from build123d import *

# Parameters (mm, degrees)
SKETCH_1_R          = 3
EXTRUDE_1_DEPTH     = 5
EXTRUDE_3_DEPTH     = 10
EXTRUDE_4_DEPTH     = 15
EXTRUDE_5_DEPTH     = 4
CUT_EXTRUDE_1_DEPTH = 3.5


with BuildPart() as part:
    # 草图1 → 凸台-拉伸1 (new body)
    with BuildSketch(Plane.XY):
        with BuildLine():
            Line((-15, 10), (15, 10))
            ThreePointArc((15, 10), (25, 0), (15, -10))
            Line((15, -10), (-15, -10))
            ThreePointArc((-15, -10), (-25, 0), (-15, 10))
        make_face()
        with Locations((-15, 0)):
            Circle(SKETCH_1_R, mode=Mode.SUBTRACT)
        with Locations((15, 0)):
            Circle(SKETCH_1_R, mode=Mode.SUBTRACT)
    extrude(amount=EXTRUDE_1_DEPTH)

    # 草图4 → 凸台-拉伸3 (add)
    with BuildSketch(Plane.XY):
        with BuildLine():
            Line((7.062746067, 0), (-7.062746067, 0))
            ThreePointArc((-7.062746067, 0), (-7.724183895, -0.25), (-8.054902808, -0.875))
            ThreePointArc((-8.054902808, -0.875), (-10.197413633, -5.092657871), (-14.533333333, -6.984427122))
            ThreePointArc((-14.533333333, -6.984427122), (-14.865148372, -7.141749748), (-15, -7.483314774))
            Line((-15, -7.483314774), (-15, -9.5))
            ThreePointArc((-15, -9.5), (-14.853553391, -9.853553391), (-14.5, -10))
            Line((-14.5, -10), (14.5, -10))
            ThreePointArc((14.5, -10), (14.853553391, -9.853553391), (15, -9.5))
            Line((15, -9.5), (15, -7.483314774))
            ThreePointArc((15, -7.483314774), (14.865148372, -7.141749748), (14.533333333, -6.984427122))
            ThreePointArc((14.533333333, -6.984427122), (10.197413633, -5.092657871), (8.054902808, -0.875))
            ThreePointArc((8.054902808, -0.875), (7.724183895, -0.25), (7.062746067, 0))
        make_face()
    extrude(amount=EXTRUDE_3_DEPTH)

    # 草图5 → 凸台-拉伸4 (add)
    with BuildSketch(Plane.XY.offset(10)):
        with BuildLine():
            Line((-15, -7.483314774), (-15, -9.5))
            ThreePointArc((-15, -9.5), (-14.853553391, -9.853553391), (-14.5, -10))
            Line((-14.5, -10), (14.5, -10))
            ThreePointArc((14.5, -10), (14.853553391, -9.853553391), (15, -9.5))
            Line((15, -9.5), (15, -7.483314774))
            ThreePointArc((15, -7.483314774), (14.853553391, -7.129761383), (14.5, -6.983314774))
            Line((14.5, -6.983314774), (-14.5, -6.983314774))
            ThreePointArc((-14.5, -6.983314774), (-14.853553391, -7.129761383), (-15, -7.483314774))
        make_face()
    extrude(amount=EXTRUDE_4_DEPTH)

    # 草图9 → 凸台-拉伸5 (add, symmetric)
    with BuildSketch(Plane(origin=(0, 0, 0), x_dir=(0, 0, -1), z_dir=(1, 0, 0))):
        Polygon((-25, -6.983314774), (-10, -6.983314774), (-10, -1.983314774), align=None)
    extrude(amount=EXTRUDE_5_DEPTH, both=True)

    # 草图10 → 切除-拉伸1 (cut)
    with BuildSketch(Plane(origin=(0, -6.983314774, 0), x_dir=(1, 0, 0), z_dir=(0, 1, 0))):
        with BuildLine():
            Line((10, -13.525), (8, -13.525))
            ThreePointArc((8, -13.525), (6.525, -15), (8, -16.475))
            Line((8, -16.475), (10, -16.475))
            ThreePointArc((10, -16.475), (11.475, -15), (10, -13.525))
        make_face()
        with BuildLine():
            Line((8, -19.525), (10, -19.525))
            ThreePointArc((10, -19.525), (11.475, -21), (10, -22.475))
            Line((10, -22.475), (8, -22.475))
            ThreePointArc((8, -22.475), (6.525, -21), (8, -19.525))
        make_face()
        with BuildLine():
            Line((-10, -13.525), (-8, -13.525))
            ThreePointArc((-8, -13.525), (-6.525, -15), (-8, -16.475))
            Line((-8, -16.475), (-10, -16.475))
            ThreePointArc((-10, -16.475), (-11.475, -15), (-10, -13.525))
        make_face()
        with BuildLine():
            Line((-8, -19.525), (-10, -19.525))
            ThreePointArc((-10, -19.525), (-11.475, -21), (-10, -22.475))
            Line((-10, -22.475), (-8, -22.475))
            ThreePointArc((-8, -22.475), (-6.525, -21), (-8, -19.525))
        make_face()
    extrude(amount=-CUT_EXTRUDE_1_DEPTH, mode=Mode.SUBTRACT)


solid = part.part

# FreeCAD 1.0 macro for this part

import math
import FreeCAD as App
import Part
import Sketcher
from FreeCAD import Vector

doc = App.newDocument("Part")
body = doc.addObject("PartDesign::Body", "Body")

sketch1 = body.newObject("Sketcher::SketchObject", "Sketch")
sketch1.AttachmentSupport = (doc.getObject("XY_Plane"), [""])
sketch1.MapMode = "FlatFace"
sketch1.addGeometry(Part.LineSegment(Vector(15, 10, 0), Vector(-15, 10, 0)), False)
sketch1.addGeometry(Part.ArcOfCircle(Part.Circle(Vector(-15, 0, 0), Vector(0, 0, 1), 10), math.radians(90), math.radians(270)), False)
sketch1.addGeometry(Part.LineSegment(Vector(-15, -10, 0), Vector(15, -10, 0)), False)
sketch1.addGeometry(Part.ArcOfCircle(Part.Circle(Vector(15, 0, 0), Vector(0, 0, 1), 10), math.radians(-90), math.radians(90)), False)
sketch1.addGeometry(Part.Circle(Vector(15, 0, 0), Vector(0, 0, 1), 3), False)
sketch1.addGeometry(Part.Circle(Vector(-15, 0, 0), Vector(0, 0, 1), 3), False)
sketch1.addConstraint(Sketcher.Constraint("Tangent", 0, 2, 1, 1))
sketch1.addConstraint(Sketcher.Constraint("Tangent", 1, 2, 2, 1))
sketch1.addConstraint(Sketcher.Constraint("Tangent", 2, 2, 3, 1))
sketch1.addConstraint(Sketcher.Constraint("Tangent", 3, 2, 0, 1))
sketch1.addConstraint(Sketcher.Constraint("Horizontal", 0))
sketch1.addConstraint(Sketcher.Constraint("Horizontal", 2))
sketch1.addConstraint(Sketcher.Constraint("Coincident", 4, 3, 3, 3))
sketch1.addConstraint(Sketcher.Constraint("Coincident", 5, 3, 1, 3))
sketch1.addConstraint(Sketcher.Constraint("Equal", 4, 5))
sketch1.addConstraint(Sketcher.Constraint("Symmetric", 1, 3, 3, 3, -1, 1))
sketch1.addConstraint(Sketcher.Constraint("Diameter", 4, 6.0))
sketch1.addConstraint(Sketcher.Constraint("Radius", 1, 10.0))
sketch1.addConstraint(Sketcher.Constraint("DistanceX", 0, 2, 0, 1, 30.0))
pad1 = body.newObject("PartDesign::Pad", "Pad")
pad1.Profile = sketch1
pad1.Length = 5

sketch2 = body.newObject("Sketcher::SketchObject", "Sketch001")
sketch2.AttachmentSupport = (doc.getObject("XY_Plane"), [""])
sketch2.MapMode = "FlatFace"
sketch2.addGeometry(Part.LineSegment(Vector(7.06, 0, 0), Vector(-7.06, 0, 0)), False)
sketch2.addGeometry(Part.ArcOfCircle(Part.Circle(Vector(-7.06, -1, 0), Vector(0, 0, 1), 1), math.radians(90), math.radians(173)), False)
sketch2.addGeometry(Part.ArcOfCircle(Part.Circle(Vector(-15, 0, 0), Vector(0, 0, 1), 7), math.radians(-86), math.radians(-7)), False)
sketch2.addGeometry(Part.ArcOfCircle(Part.Circle(Vector(-14.5, -7.48, 0), Vector(0, 0, 1), 0.5), math.radians(94), math.radians(180)), False)
sketch2.addGeometry(Part.LineSegment(Vector(-15, -7.48, 0), Vector(-15, -9.5, 0)), False)
sketch2.addGeometry(Part.ArcOfCircle(Part.Circle(Vector(-14.5, -9.5, 0), Vector(0, 0, 1), 0.5), math.radians(180), math.radians(270)), False)
sketch2.addGeometry(Part.LineSegment(Vector(-14.5, -10, 0), Vector(14.5, -10, 0)), False)
sketch2.addGeometry(Part.ArcOfCircle(Part.Circle(Vector(14.5, -9.5, 0), Vector(0, 0, 1), 0.5), math.radians(-90), math.radians(0)), False)
sketch2.addGeometry(Part.LineSegment(Vector(15, -9.5, 0), Vector(15, -7.48, 0)), False)
sketch2.addGeometry(Part.ArcOfCircle(Part.Circle(Vector(14.5, -7.48, 0), Vector(0, 0, 1), 0.5), math.radians(0), math.radians(86)), False)
sketch2.addGeometry(Part.ArcOfCircle(Part.Circle(Vector(15, 0, 0), Vector(0, 0, 1), 7), math.radians(-173), math.radians(-94)), False)
sketch2.addGeometry(Part.ArcOfCircle(Part.Circle(Vector(7.06, -1, 0), Vector(0, 0, 1), 1), math.radians(7), math.radians(90)), False)
sketch2.addConstraint(Sketcher.Constraint("Tangent", 0, 2, 1, 1))
sketch2.addConstraint(Sketcher.Constraint("Tangent", 1, 2, 2, 2))
sketch2.addConstraint(Sketcher.Constraint("Tangent", 2, 1, 3, 1))
sketch2.addConstraint(Sketcher.Constraint("Tangent", 3, 2, 4, 1))
sketch2.addConstraint(Sketcher.Constraint("Tangent", 4, 2, 5, 1))
sketch2.addConstraint(Sketcher.Constraint("Tangent", 5, 2, 6, 1))
sketch2.addConstraint(Sketcher.Constraint("Tangent", 6, 2, 7, 1))
sketch2.addConstraint(Sketcher.Constraint("Tangent", 7, 2, 8, 1))
sketch2.addConstraint(Sketcher.Constraint("Tangent", 8, 2, 9, 1))
sketch2.addConstraint(Sketcher.Constraint("Tangent", 9, 2, 10, 2))
sketch2.addConstraint(Sketcher.Constraint("Tangent", 10, 1, 11, 1))
sketch2.addConstraint(Sketcher.Constraint("Tangent", 11, 2, 0, 1))
sketch2.addConstraint(Sketcher.Constraint("Horizontal", 0))
sketch2.addConstraint(Sketcher.Constraint("Vertical", 4))
sketch2.addConstraint(Sketcher.Constraint("Horizontal", 6))
sketch2.addConstraint(Sketcher.Constraint("Vertical", 8))
sketch2.addConstraint(Sketcher.Constraint("Equal", 3, 5))
sketch2.addConstraint(Sketcher.Constraint("Equal", 5, 7))
sketch2.addConstraint(Sketcher.Constraint("Equal", 7, 9))
sketch2.addConstraint(Sketcher.Constraint("Equal", 2, 10))
sketch2.addConstraint(Sketcher.Constraint("Equal", 1, 11))
sketch2.addConstraint(Sketcher.Constraint("Symmetric", 2, 3, 10, 3, -1, 1))
sketch2.addConstraint(Sketcher.Constraint("Symmetric", 0, 2, 11, 2, -1, 1))
sketch2.addConstraint(Sketcher.Constraint("Horizontal", 3, 3, 9, 3))
sketch2.addConstraint(Sketcher.Constraint("Vertical", 2, 3, 3, 2))
sketch2.addConstraint(Sketcher.Constraint("Radius", 1, 1.0))
sketch2.addConstraint(Sketcher.Constraint("Radius", 2, 7.0))
sketch2.addConstraint(Sketcher.Constraint("Radius", 3, 0.5))
sketch2.addConstraint(Sketcher.Constraint("DistanceX", 6, 1, 6, 2, 29.0))
sketch2.addConstraint(Sketcher.Constraint("DistanceY", 5, 2, -1, 1, 10.0))
pad2 = body.newObject("PartDesign::Pad", "Pad001")
pad2.Profile = sketch2
pad2.Length = 10

sketch3 = body.newObject("Sketcher::SketchObject", "Sketch002")
sketch3.AttachmentSupport = (doc.getObject("XY_Plane"), [""])
sketch3.MapMode = "FlatFace"
sketch3.AttachmentOffset = App.Placement(Vector(0, 0, 10), App.Rotation())
sketch3.addGeometry(Part.LineSegment(Vector(-15, -7.48, 0), Vector(-15, -9.5, 0)), False)
sketch3.addGeometry(Part.ArcOfCircle(Part.Circle(Vector(-14.5, -9.5, 0), Vector(0, 0, 1), 0.5), math.radians(180), math.radians(270)), False)
sketch3.addGeometry(Part.LineSegment(Vector(-14.5, -10, 0), Vector(14.5, -10, 0)), False)
sketch3.addGeometry(Part.ArcOfCircle(Part.Circle(Vector(14.5, -9.5, 0), Vector(0, 0, 1), 0.5), math.radians(-90), math.radians(0)), False)
sketch3.addGeometry(Part.LineSegment(Vector(15, -9.5, 0), Vector(15, -7.48, 0)), False)
sketch3.addGeometry(Part.ArcOfCircle(Part.Circle(Vector(14.5, -7.48, 0), Vector(0, 0, 1), 0.5), math.radians(0), math.radians(90)), False)
sketch3.addGeometry(Part.LineSegment(Vector(14.5, -6.98, 0), Vector(-14.5, -6.98, 0)), False)
sketch3.addGeometry(Part.ArcOfCircle(Part.Circle(Vector(-14.5, -7.48, 0), Vector(0, 0, 1), 0.5), math.radians(90), math.radians(180)), False)
sketch3.addConstraint(Sketcher.Constraint("Tangent", 0, 2, 1, 1))
sketch3.addConstraint(Sketcher.Constraint("Tangent", 1, 2, 2, 1))
sketch3.addConstraint(Sketcher.Constraint("Tangent", 2, 2, 3, 1))
sketch3.addConstraint(Sketcher.Constraint("Tangent", 3, 2, 4, 1))
sketch3.addConstraint(Sketcher.Constraint("Tangent", 4, 2, 5, 1))
sketch3.addConstraint(Sketcher.Constraint("Tangent", 5, 2, 6, 1))
sketch3.addConstraint(Sketcher.Constraint("Tangent", 6, 2, 7, 1))
sketch3.addConstraint(Sketcher.Constraint("Tangent", 7, 2, 0, 1))
sketch3.addConstraint(Sketcher.Constraint("Vertical", 0))
sketch3.addConstraint(Sketcher.Constraint("Horizontal", 2))
sketch3.addConstraint(Sketcher.Constraint("Vertical", 4))
sketch3.addConstraint(Sketcher.Constraint("Horizontal", 6))
sketch3.addConstraint(Sketcher.Constraint("Equal", 1, 3))
sketch3.addConstraint(Sketcher.Constraint("Equal", 3, 5))
sketch3.addConstraint(Sketcher.Constraint("Equal", 5, 7))
sketch3.addConstraint(Sketcher.Constraint("Radius", 1, 0.5))
sketch3.addConstraint(Sketcher.Constraint("DistanceX", 2, 1, 2, 2, 29.0))
sketch3.addConstraint(Sketcher.Constraint("DistanceX", 0, 2, -1, 1, 15.0))
sketch3.addConstraint(Sketcher.Constraint("DistanceY", 1, 2, -1, 1, 10.0))
sketch3.addConstraint(Sketcher.Constraint("DistanceY", 0, 2, 0, 1, 2.016685))
pad3 = body.newObject("PartDesign::Pad", "Pad002")
pad3.Profile = sketch3
pad3.Length = 15

sketch4 = body.newObject("Sketcher::SketchObject", "Sketch003")
sketch4.AttachmentSupport = (doc.getObject("YZ_Plane"), [""])
sketch4.MapMode = "FlatFace"
sketch4.addGeometry(Part.LineSegment(Vector(-7, 25, 0), Vector(-7, 10, 0)), False)
sketch4.addGeometry(Part.LineSegment(Vector(-7, 10, 0), Vector(-2, 10, 0)), False)
sketch4.addGeometry(Part.LineSegment(Vector(-2, 10, 0), Vector(-7, 25, 0)), False)
sketch4.addConstraint(Sketcher.Constraint("Coincident", 0, 2, 1, 1))
sketch4.addConstraint(Sketcher.Constraint("Coincident", 1, 2, 2, 1))
sketch4.addConstraint(Sketcher.Constraint("Coincident", 2, 2, 0, 1))
sketch4.addConstraint(Sketcher.Constraint("Vertical", 0))
sketch4.addConstraint(Sketcher.Constraint("Horizontal", 1))
sketch4.addConstraint(Sketcher.Constraint("DistanceX", 1, 1, 1, 2, 5.0))
sketch4.addConstraint(Sketcher.Constraint("DistanceY", 0, 2, 0, 1, 15.0))
sketch4.addConstraint(Sketcher.Constraint("DistanceY", -1, 1, 0, 2, 10.0))
sketch4.addConstraint(Sketcher.Constraint("DistanceX", 0, 2, -1, 1, 6.983315))
pad4 = body.newObject("PartDesign::Pad", "Pad003")
pad4.Profile = sketch4
pad4.Length = 8
pad4.Midplane = True

sketch5 = body.newObject("Sketcher::SketchObject", "Sketch004")
sketch5.AttachmentSupport = (doc.getObject("XZ_Plane"), [""])
sketch5.MapMode = "FlatFace"
sketch5.AttachmentOffset = App.Placement(Vector(0, 0, 6.983315), App.Rotation())
sketch5.addGeometry(Part.LineSegment(Vector(10, 13.5, 0), Vector(8, 13.5, 0)), False)
sketch5.addGeometry(Part.ArcOfCircle(Part.Circle(Vector(8, 15, 0), Vector(0, 0, 1), 1.5), math.radians(90), math.radians(270)), False)
sketch5.addGeometry(Part.LineSegment(Vector(8, 16.5, 0), Vector(10, 16.5, 0)), False)
sketch5.addGeometry(Part.ArcOfCircle(Part.Circle(Vector(10, 15, 0), Vector(0, 0, 1), 1.5), math.radians(-90), math.radians(90)), False)
sketch5.addGeometry(Part.LineSegment(Vector(10, 19.5, 0), Vector(8, 19.5, 0)), False)
sketch5.addGeometry(Part.ArcOfCircle(Part.Circle(Vector(8, 21, 0), Vector(0, 0, 1), 1.5), math.radians(90), math.radians(270)), False)
sketch5.addGeometry(Part.LineSegment(Vector(8, 22.5, 0), Vector(10, 22.5, 0)), False)
sketch5.addGeometry(Part.ArcOfCircle(Part.Circle(Vector(10, 21, 0), Vector(0, 0, 1), 1.5), math.radians(-90), math.radians(90)), False)
sketch5.addGeometry(Part.LineSegment(Vector(-8, 13.5, 0), Vector(-10, 13.5, 0)), False)
sketch5.addGeometry(Part.ArcOfCircle(Part.Circle(Vector(-10, 15, 0), Vector(0, 0, 1), 1.5), math.radians(90), math.radians(270)), False)
sketch5.addGeometry(Part.LineSegment(Vector(-10, 16.5, 0), Vector(-8, 16.5, 0)), False)
sketch5.addGeometry(Part.ArcOfCircle(Part.Circle(Vector(-8, 15, 0), Vector(0, 0, 1), 1.5), math.radians(-90), math.radians(90)), False)
sketch5.addGeometry(Part.LineSegment(Vector(-8, 19.5, 0), Vector(-10, 19.5, 0)), False)
sketch5.addGeometry(Part.ArcOfCircle(Part.Circle(Vector(-10, 21, 0), Vector(0, 0, 1), 1.5), math.radians(90), math.radians(270)), False)
sketch5.addGeometry(Part.LineSegment(Vector(-10, 22.5, 0), Vector(-8, 22.5, 0)), False)
sketch5.addGeometry(Part.ArcOfCircle(Part.Circle(Vector(-8, 21, 0), Vector(0, 0, 1), 1.5), math.radians(-90), math.radians(90)), False)
sketch5.addConstraint(Sketcher.Constraint("Tangent", 0, 2, 1, 2))
sketch5.addConstraint(Sketcher.Constraint("Tangent", 1, 1, 2, 1))
sketch5.addConstraint(Sketcher.Constraint("Tangent", 2, 2, 3, 2))
sketch5.addConstraint(Sketcher.Constraint("Tangent", 3, 1, 0, 1))
sketch5.addConstraint(Sketcher.Constraint("Tangent", 4, 2, 5, 2))
sketch5.addConstraint(Sketcher.Constraint("Tangent", 5, 1, 6, 1))
sketch5.addConstraint(Sketcher.Constraint("Tangent", 6, 2, 7, 2))
sketch5.addConstraint(Sketcher.Constraint("Tangent", 7, 1, 4, 1))
sketch5.addConstraint(Sketcher.Constraint("Tangent", 8, 2, 9, 2))
sketch5.addConstraint(Sketcher.Constraint("Tangent", 9, 1, 10, 1))
sketch5.addConstraint(Sketcher.Constraint("Tangent", 10, 2, 11, 2))
sketch5.addConstraint(Sketcher.Constraint("Tangent", 11, 1, 8, 1))
sketch5.addConstraint(Sketcher.Constraint("Tangent", 12, 2, 13, 2))
sketch5.addConstraint(Sketcher.Constraint("Tangent", 13, 1, 14, 1))
sketch5.addConstraint(Sketcher.Constraint("Tangent", 14, 2, 15, 2))
sketch5.addConstraint(Sketcher.Constraint("Tangent", 15, 1, 12, 1))
sketch5.addConstraint(Sketcher.Constraint("Horizontal", 0))
sketch5.addConstraint(Sketcher.Constraint("Horizontal", 2))
sketch5.addConstraint(Sketcher.Constraint("Horizontal", 4))
sketch5.addConstraint(Sketcher.Constraint("Horizontal", 6))
sketch5.addConstraint(Sketcher.Constraint("Horizontal", 8))
sketch5.addConstraint(Sketcher.Constraint("Horizontal", 10))
sketch5.addConstraint(Sketcher.Constraint("Horizontal", 12))
sketch5.addConstraint(Sketcher.Constraint("Horizontal", 14))
sketch5.addConstraint(Sketcher.Constraint("Equal", 3, 5))
sketch5.addConstraint(Sketcher.Constraint("Equal", 7, 9))
sketch5.addConstraint(Sketcher.Constraint("Equal", 11, 13))
sketch5.addConstraint(Sketcher.Constraint("Symmetric", 3, 3, 9, 3, -2))
sketch5.addConstraint(Sketcher.Constraint("Symmetric", 7, 3, 13, 3, -2))
sketch5.addConstraint(Sketcher.Constraint("Vertical", 1, 3, 5, 3))
sketch5.addConstraint(Sketcher.Constraint("Vertical", 3, 3, 7, 3))
sketch5.addConstraint(Sketcher.Constraint("Vertical", 11, 3, 15, 3))
sketch5.addConstraint(Sketcher.Constraint("Equal", 6, 8))
sketch5.addConstraint(Sketcher.Constraint("DistanceX", 0, 2, 0, 1, 2.0))
sketch5.addConstraint(Sketcher.Constraint("DistanceX", -1, 1, 1, 3, 8.0))
sketch5.addConstraint(Sketcher.Constraint("DistanceY", -1, 1, 1, 3, 15.0))
sketch5.addConstraint(Sketcher.Constraint("DistanceY", -1, 1, 5, 3, 21.0))
sketch5.addConstraint(Sketcher.Constraint("Radius", 1, 1.475))
pocket1 = body.newObject("PartDesign::Pocket", "Pocket")
pocket1.Profile = sketch5
pocket1.Length = 3.5
pocket1.Reversed = True

doc.recompute()
